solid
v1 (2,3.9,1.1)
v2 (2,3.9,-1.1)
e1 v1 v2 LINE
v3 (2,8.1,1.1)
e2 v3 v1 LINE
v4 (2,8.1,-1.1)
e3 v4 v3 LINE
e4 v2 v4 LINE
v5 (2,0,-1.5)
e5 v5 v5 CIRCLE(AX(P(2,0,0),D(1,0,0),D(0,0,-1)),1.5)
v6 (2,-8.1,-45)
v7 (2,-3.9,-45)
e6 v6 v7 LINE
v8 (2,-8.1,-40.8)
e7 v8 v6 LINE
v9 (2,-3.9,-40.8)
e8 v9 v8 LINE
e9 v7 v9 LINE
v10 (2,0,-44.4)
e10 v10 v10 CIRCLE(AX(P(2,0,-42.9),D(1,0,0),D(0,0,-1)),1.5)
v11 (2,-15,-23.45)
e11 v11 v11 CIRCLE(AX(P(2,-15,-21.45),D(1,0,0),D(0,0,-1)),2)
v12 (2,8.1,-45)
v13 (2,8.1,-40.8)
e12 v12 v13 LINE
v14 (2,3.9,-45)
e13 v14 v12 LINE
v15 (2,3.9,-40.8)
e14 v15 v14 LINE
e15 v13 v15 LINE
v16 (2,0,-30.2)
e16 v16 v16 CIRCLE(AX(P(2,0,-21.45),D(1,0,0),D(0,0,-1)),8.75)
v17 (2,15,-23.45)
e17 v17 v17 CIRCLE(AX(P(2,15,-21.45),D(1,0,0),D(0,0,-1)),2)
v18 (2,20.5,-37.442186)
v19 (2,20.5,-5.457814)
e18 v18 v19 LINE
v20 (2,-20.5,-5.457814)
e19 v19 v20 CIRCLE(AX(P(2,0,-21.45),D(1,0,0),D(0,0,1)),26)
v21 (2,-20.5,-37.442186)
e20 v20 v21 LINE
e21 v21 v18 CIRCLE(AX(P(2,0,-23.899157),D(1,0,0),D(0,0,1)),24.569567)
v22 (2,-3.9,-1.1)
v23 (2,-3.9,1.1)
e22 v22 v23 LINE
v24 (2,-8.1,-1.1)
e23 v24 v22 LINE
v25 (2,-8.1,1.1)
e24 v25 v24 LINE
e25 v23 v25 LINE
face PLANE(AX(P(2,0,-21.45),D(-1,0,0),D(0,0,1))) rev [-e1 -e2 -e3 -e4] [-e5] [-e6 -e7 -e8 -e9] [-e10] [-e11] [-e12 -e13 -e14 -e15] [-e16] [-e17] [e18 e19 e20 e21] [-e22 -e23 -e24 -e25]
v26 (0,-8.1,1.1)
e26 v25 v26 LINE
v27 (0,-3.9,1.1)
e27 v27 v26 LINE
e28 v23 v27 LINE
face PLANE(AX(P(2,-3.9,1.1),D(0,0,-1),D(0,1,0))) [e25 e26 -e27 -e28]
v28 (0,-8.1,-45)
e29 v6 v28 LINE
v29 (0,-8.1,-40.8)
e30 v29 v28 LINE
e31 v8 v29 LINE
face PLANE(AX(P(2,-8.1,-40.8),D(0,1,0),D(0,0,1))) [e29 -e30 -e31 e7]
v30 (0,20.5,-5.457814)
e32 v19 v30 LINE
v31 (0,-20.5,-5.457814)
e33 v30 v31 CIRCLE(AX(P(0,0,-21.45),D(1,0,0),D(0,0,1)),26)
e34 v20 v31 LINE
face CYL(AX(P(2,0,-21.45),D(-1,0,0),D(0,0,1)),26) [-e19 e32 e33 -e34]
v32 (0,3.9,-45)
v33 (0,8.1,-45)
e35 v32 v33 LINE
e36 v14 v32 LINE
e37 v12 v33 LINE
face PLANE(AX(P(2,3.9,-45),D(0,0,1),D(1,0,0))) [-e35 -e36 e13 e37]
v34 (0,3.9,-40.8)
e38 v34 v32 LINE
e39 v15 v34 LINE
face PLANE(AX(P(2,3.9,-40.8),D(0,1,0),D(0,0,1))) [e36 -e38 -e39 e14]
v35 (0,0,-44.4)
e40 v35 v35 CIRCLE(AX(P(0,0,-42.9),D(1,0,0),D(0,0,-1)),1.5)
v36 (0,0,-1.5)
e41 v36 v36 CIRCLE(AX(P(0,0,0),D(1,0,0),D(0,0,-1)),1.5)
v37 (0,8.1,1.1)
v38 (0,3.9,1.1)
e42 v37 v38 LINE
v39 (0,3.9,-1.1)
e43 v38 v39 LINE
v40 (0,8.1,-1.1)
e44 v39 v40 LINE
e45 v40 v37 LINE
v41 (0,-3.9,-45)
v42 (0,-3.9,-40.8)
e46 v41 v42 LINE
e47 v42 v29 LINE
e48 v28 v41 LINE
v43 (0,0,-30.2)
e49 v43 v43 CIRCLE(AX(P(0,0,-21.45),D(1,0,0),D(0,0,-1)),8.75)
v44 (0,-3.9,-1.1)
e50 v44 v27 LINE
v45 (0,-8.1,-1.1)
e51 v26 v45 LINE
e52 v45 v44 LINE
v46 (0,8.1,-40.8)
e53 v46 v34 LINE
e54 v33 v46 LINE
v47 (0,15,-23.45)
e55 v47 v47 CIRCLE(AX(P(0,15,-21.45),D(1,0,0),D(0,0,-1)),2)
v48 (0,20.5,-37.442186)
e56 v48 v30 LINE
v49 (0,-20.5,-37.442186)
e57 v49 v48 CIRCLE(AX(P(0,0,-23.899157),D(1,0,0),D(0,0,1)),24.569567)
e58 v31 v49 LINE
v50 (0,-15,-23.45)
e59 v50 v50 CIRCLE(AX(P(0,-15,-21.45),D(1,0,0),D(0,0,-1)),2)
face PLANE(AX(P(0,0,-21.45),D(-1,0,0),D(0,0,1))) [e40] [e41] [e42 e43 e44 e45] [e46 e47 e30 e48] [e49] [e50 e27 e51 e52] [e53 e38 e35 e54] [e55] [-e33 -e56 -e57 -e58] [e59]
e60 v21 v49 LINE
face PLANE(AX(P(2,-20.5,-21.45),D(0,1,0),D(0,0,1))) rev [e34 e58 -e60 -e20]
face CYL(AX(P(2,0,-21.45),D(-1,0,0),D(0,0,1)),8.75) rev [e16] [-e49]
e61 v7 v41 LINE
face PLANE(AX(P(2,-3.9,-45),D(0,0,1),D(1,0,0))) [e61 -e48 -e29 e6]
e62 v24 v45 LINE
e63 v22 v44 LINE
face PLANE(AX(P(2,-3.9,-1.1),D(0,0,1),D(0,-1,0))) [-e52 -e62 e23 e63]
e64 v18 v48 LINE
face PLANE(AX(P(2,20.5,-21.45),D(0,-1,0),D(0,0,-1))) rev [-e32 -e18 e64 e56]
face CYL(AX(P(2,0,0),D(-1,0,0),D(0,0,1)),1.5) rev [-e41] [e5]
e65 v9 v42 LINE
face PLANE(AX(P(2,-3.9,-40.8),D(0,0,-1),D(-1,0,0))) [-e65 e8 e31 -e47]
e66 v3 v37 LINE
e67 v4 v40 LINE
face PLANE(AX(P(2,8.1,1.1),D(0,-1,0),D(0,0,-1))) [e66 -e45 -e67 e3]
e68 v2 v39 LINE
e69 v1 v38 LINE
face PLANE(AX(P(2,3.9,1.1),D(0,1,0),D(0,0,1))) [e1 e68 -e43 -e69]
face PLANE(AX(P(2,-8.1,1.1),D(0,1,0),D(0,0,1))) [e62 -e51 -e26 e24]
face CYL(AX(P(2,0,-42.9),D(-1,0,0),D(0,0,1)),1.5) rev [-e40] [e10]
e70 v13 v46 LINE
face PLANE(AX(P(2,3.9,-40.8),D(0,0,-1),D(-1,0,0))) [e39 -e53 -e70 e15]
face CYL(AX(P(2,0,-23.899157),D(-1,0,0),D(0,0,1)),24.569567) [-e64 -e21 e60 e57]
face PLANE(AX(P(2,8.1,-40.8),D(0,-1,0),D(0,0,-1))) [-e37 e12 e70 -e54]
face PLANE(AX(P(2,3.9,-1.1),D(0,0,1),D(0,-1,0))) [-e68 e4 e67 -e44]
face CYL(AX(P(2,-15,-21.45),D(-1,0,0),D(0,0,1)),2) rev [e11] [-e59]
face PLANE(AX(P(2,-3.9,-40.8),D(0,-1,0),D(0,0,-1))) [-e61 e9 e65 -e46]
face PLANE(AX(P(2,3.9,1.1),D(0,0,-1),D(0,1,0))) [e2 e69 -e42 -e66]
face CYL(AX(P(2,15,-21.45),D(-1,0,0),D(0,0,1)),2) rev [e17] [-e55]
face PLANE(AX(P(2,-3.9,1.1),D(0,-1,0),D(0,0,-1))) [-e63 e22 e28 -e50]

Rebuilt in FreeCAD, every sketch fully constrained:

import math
import FreeCAD as App
import Part
import Sketcher


def add_polygon(sketch, points):
    """Adds a closed chain of lines whose ends are joined by coincident constraints."""
    first, n = sketch.GeometryCount, len(points)
    for a, b in zip(points, points[1:] + points[:1]):
        sketch.addGeometry(Part.LineSegment(App.Vector(*a, 0), App.Vector(*b, 0)), False)
    for i in range(n):
        sketch.addConstraint(Sketcher.Constraint("Coincident", first + i, 2, first + (i + 1) % n, 1))

doc = App.newDocument("Part")
params = doc.addObject("Spreadsheet::Sheet", "Params")
for row, (alias, value) in enumerate([
    ("sketch1_diameter", "4 mm"),
    ("sketch1_diameter2", "3 mm"),
    ("sketch1_radius", "26 mm"),
    ("sketch1_diameter3", "17.5 mm"),
    ("sketch1_width", "4.2 mm"),
    ("pad1_length", "2 mm"),
], start=1):
    params.set(f"A{row}", alias)
    params.set(f"B{row}", "=" + value)
    params.setAlias(f"B{row}", alias)

body = doc.addObject("PartDesign::Body", "Body")

# Sketch on YZ plane
sketch1 = body.newObject("Sketcher::SketchObject", "Sketch")
sketch1.AttachmentSupport = (doc.getObject("YZ_Plane"), [""])
sketch1.MapMode = "FlatFace"
sketch1.addGeometry(Part.ArcOfCircle(Part.Circle(App.Vector(0, -23.899157, 0), App.Vector(0, 0, 1), 24.569567), math.radians(-146.549832), math.radians(-33.450168)), False)  # 0
sketch1.addGeometry(Part.LineSegment(App.Vector(20.5, -37.442186, 0), App.Vector(20.5, -5.457814, 0)), False)  # 1
sketch1.addGeometry(Part.ArcOfCircle(Part.Circle(App.Vector(0, -21.45, 0), App.Vector(0, 0, 1), 26), math.radians(37.958029), math.radians(142.041971)), False)  # 2
sketch1.addGeometry(Part.LineSegment(App.Vector(-20.5, -5.457814, 0), App.Vector(-20.5, -37.442186, 0)), False)  # 3
sketch1.addGeometry(Part.Circle(App.Vector(-15, -21.45, 0), App.Vector(0, 0, 1), 2), False)  # 4
add_polygon(sketch1, [(-8.1, -1.1), (-8.1, 1.1), (-3.9, 1.1), (-3.9, -1.1)])  # lines 5-8
add_polygon(sketch1, [(-8.1, -45), (-8.1, -40.8), (-3.9, -40.8), (-3.9, -45)])  # lines 9-12
sketch1.addGeometry(Part.Circle(App.Vector(0, 0, 0), App.Vector(0, 0, 1), 1.5), False)  # 13
add_polygon(sketch1, [(3.9, -1.1), (3.9, 1.1), (8.1, 1.1), (8.1, -1.1)])  # lines 14-17
sketch1.addGeometry(Part.Circle(App.Vector(0, -21.45, 0), App.Vector(0, 0, 1), 8.75), False)  # 18
sketch1.addGeometry(Part.Circle(App.Vector(15, -21.45, 0), App.Vector(0, 0, 1), 2), False)  # 19
sketch1.addGeometry(Part.Circle(App.Vector(0, -42.9, 0), App.Vector(0, 0, 1), 1.5), False)  # 20
add_polygon(sketch1, [(3.9, -45), (3.9, -40.8), (8.1, -40.8), (8.1, -45)])  # lines 21-24
sketch1.addConstraint(Sketcher.Constraint("Coincident", 0, 2, 1, 1))
sketch1.addConstraint(Sketcher.Constraint("Coincident", 1, 2, 2, 1))
sketch1.addConstraint(Sketcher.Constraint("Coincident", 2, 2, 3, 1))
sketch1.addConstraint(Sketcher.Constraint("Coincident", 3, 2, 0, 1))
sketch1.addConstraint(Sketcher.Constraint("Vertical", 1))
sketch1.addConstraint(Sketcher.Constraint("Vertical", 3))
sketch1.addConstraint(Sketcher.Constraint("Vertical", 5))
sketch1.addConstraint(Sketcher.Constraint("Horizontal", 6))
sketch1.addConstraint(Sketcher.Constraint("Vertical", 7))
sketch1.addConstraint(Sketcher.Constraint("Horizontal", 8))
sketch1.addConstraint(Sketcher.Constraint("Vertical", 9))
sketch1.addConstraint(Sketcher.Constraint("Horizontal", 10))
sketch1.addConstraint(Sketcher.Constraint("Vertical", 11))
sketch1.addConstraint(Sketcher.Constraint("Horizontal", 12))
sketch1.addConstraint(Sketcher.Constraint("Vertical", 14))
sketch1.addConstraint(Sketcher.Constraint("Horizontal", 15))
sketch1.addConstraint(Sketcher.Constraint("Vertical", 16))
sketch1.addConstraint(Sketcher.Constraint("Horizontal", 17))
sketch1.addConstraint(Sketcher.Constraint("Vertical", 21))
sketch1.addConstraint(Sketcher.Constraint("Horizontal", 22))
sketch1.addConstraint(Sketcher.Constraint("Vertical", 23))
sketch1.addConstraint(Sketcher.Constraint("Horizontal", 24))
sketch1.addConstraint(Sketcher.Constraint("Coincident", 13, 3, -1, 1))
sketch1.addConstraint(Sketcher.Constraint("Coincident", 18, 3, 2, 3))
sketch1.addConstraint(Sketcher.Constraint("Equal", 4, 19))
sketch1.addConstraint(Sketcher.Constraint("Equal", 13, 20))
sketch1.addConstraint(Sketcher.Constraint("Symmetric", 7, 2, 14, 2, -1, 1))
sketch1.addConstraint(Sketcher.Constraint("Symmetric", 5, 2, 16, 2, -1, 1))
sketch1.addConstraint(Sketcher.Constraint("Symmetric", 4, 3, 19, 3, -2))
sketch1.addConstraint(Sketcher.Constraint("Symmetric", 1, 2, 2, 2, -2))
sketch1.addConstraint(Sketcher.Constraint("Symmetric", 10, 2, 21, 2, -2))
sketch1.addConstraint(Sketcher.Constraint("Symmetric", 12, 2, 23, 2, -2))
sketch1.addConstraint(Sketcher.Constraint("PointOnObject", 0, 3, -2))
sketch1.addConstraint(Sketcher.Constraint("PointOnObject", 20, 3, -2))
sketch1.addConstraint(Sketcher.Constraint("Horizontal", 2, 3, 4, 3))
sketch1.addConstraint(Sketcher.Constraint("Horizontal", 6, 2, 14, 2))
sketch1.addConstraint(Sketcher.Constraint("Vertical", 8, 2, 9, 2))
sketch1.addConstraint(Sketcher.Constraint("Vertical", 7, 2, 10, 2))
sketch1.addConstraint(Sketcher.Constraint("Equal", 24, 9))
sketch1.addConstraint(Sketcher.Constraint("Diameter", 4, 4.0))
sketch1.addConstraint(Sketcher.Constraint("Diameter", 13, 3.0))
sketch1.addConstraint(Sketcher.Constraint("Radius", 2, 26.0))
sketch1.addConstraint(Sketcher.Constraint("Diameter", 18, 17.5))
sketch1.addConstraint(Sketcher.Constraint("DistanceX", 6, 1, 6, 2, 4.2))
sketch1.addConstraint(Sketcher.Constraint("DistanceY", 5, 1, 5, 2, 2.2))
sketch1.addConstraint(Sketcher.Constraint("DistanceX", 4, 3, -1, 1, 15.0))
sketch1.addConstraint(Sketcher.Constraint("DistanceY", 11, 2, -1, 1, 45.0))
sketch1.addConstraint(Sketcher.Constraint("DistanceX", 5, 2, 14, 2, 12.0))
sketch1.addConstraint(Sketcher.Constraint("DistanceY", 20, 3, -1, 1, 42.9))
sketch1.addConstraint(Sketcher.Constraint("DistanceX", -1, 1, 0, 2, 20.5))
sketch1.addConstraint(Sketcher.Constraint("DistanceY", 2, 3, -1, 1, 21.45))
sketch1.addConstraint(Sketcher.Constraint("Radius", 0, 24.569567))
sketch1.addConstraint(Sketcher.Constraint("DistanceY", 1, 1, 1, 2, 31.984371))
sketch1.setExpression("Constraints[55]", "Params.sketch1_diameter")
sketch1.setExpression("Constraints[56]", "Params.sketch1_diameter2")
sketch1.setExpression("Constraints[57]", "Params.sketch1_radius")
sketch1.setExpression("Constraints[58]", "Params.sketch1_diameter3")
sketch1.setExpression("Constraints[59]", "Params.sketch1_width")
pad1 = body.newObject("PartDesign::Pad", "Pad")
pad1.Profile = sketch1
pad1.setExpression("Length", "Params.pad1_length")

doc.recompute()
